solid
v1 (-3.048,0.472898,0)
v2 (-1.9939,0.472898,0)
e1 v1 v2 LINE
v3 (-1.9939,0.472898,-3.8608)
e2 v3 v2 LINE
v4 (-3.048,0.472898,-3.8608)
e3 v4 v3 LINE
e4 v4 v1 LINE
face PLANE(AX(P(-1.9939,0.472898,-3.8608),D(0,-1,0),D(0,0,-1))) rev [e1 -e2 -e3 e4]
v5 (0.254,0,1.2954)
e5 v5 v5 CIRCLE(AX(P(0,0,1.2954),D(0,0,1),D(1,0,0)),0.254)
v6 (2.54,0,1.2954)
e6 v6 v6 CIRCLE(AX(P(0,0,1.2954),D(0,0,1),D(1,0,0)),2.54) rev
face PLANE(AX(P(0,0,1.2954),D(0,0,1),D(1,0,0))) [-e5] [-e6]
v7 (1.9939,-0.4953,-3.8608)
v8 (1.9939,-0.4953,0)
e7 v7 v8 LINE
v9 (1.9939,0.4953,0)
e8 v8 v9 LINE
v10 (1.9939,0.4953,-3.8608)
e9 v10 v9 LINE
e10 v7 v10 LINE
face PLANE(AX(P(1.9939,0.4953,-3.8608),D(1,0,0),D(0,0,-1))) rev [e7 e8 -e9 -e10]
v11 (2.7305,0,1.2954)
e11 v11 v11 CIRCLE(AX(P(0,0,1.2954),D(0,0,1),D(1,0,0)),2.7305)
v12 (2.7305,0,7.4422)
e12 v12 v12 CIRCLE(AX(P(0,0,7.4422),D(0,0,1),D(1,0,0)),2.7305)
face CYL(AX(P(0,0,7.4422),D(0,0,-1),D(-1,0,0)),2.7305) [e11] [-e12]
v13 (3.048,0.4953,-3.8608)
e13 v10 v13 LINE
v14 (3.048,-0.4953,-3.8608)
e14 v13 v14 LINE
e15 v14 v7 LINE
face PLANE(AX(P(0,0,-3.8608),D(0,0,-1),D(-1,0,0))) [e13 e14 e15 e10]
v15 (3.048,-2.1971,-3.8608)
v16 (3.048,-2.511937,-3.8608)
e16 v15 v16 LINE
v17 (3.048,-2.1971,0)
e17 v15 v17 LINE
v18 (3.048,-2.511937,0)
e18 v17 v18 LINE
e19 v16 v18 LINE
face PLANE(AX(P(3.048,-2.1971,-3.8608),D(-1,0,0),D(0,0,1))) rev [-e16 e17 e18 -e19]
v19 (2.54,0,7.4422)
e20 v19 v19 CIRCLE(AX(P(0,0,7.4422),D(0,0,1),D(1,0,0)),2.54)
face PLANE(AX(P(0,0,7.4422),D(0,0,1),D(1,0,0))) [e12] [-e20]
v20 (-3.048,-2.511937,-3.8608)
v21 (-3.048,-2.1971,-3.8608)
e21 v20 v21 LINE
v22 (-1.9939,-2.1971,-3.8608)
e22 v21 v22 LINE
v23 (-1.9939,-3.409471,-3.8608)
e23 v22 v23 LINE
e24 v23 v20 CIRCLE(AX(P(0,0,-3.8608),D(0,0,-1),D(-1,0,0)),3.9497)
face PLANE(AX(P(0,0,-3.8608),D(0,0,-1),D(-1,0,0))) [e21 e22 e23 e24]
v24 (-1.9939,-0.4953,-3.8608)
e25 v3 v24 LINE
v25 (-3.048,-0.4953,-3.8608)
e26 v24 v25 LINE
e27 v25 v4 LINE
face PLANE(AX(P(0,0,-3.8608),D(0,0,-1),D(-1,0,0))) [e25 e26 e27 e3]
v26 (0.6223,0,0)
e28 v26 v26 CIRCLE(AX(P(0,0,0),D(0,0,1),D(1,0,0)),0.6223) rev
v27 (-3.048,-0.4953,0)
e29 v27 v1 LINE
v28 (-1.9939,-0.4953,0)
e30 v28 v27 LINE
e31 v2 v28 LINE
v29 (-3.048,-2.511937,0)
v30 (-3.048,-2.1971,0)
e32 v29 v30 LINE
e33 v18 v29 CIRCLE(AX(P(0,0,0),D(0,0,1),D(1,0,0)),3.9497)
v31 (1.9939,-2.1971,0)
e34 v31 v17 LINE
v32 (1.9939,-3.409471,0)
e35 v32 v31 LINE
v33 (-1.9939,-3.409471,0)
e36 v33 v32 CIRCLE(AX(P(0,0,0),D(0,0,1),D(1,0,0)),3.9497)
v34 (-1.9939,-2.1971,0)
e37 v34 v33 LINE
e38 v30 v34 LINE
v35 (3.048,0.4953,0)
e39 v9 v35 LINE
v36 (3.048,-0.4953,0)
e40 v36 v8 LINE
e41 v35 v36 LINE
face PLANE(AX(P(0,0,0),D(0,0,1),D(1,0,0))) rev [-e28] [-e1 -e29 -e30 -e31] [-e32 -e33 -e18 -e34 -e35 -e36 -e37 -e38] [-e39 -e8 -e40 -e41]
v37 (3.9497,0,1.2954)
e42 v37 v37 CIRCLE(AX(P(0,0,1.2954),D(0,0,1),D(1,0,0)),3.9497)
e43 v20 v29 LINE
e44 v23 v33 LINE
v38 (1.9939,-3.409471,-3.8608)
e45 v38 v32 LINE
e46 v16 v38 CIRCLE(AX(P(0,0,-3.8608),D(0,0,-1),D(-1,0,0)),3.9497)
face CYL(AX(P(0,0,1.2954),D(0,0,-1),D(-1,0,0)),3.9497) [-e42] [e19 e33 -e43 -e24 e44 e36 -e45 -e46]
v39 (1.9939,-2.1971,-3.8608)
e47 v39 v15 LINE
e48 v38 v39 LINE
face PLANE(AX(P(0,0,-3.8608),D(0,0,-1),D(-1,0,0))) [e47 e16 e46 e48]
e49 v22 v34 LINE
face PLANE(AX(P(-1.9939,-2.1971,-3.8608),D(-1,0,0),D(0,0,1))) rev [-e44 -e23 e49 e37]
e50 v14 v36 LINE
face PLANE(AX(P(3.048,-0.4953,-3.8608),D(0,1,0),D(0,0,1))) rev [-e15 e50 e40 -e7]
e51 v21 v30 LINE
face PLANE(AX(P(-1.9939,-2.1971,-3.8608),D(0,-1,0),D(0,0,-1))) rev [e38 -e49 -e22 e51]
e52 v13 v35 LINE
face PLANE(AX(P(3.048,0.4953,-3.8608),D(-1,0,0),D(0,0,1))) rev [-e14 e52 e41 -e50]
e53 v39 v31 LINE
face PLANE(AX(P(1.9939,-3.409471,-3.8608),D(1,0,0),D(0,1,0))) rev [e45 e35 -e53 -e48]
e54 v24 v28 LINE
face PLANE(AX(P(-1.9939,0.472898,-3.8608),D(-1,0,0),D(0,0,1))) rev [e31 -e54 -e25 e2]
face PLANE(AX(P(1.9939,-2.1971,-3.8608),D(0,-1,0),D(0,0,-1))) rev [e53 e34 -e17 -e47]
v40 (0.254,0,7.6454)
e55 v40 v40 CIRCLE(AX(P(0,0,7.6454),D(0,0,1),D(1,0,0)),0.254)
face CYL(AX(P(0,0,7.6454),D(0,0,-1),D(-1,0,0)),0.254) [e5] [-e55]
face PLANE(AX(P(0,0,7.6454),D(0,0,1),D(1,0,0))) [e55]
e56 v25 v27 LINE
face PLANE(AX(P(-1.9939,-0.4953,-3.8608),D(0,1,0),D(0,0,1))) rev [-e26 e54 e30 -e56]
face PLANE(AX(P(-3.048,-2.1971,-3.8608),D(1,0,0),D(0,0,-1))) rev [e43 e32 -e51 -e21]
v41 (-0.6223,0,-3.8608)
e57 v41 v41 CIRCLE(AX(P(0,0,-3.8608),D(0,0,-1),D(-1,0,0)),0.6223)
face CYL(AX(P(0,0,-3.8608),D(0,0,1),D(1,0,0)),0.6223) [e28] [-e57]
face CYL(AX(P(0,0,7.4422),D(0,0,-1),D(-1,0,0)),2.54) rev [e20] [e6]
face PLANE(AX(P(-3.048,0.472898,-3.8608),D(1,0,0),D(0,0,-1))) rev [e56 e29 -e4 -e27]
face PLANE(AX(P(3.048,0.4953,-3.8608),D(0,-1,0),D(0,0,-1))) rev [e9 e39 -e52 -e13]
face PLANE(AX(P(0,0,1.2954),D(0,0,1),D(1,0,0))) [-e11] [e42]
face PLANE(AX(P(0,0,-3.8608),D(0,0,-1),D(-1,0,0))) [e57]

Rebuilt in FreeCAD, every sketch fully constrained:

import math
import FreeCAD as App
import Part
import Sketcher
from FreeCAD import Vector
Q = App.Units.Quantity

doc = App.newDocument("Part")
body = doc.addObject("PartDesign::Body", "Body")

# Sketch on XY plane
sketch1 = doc.addObject("Sketcher::SketchObject", "Sketch")
body.addObject(sketch1)
sketch1.AttachmentSupport = (doc.XY_Plane, [""])
sketch1.MapMode = "FlatFace"
sketch1.addGeometry(Part.Circle(Vector(0, 0, 0), Vector(0, 0, 1), 3.9), False)
sketch1.addConstraint(Sketcher.Constraint("Coincident", 0, 3, -1, 1))
sketch1.addConstraint(Sketcher.Constraint("Diameter", 0, Q("0.311 in")))
pad1 = doc.addObject("PartDesign::Pad", "Pad")
body.addObject(pad1)
pad1.Profile = sketch1
pad1.Length = Q("0.051 in")

# Sketch on XY plane
sketch2 = doc.addObject("Sketcher::SketchObject", "Sketch001")
body.addObject(sketch2)
sketch2.AttachmentSupport = (doc.XY_Plane, [""])
sketch2.MapMode = "FlatFace"
sketch2.AttachmentOffset = App.Placement(Vector(0, 0, 0.051 * 25.4), App.Rotation())
sketch2.addGeometry(Part.Circle(Vector(0, 0, 0), Vector(0, 0, 1), 2.7), False)
sketch2.addGeometry(Part.Circle(Vector(0, 0, 0), Vector(0, 0, 1), 2.5), False)
sketch2.addConstraint(Sketcher.Constraint("Coincident", 0, 3, -1, 1))
sketch2.addConstraint(Sketcher.Constraint("Coincident", 1, 3, -1, 1))
sketch2.addConstraint(Sketcher.Constraint("Diameter", 1, Q("0.2 in")))
sketch2.addConstraint(Sketcher.Constraint("Diameter", 0, Q("0.215 in")))
pad2 = doc.addObject("PartDesign::Pad", "Pad001")
body.addObject(pad2)
pad2.Profile = sketch2
pad2.Length = Q("0.242 in")

# Sketch on XY plane
sketch3 = doc.addObject("Sketcher::SketchObject", "Sketch002")
body.addObject(sketch3)
sketch3.AttachmentSupport = (doc.XY_Plane, [""])
sketch3.MapMode = "FlatFace"
sketch3.AttachmentOffset = App.Placement(Vector(0, 0, -0.152 * 25.4), App.Rotation())
sketch3.addGeometry(Part.LineSegment(Vector(-1.99, 0.47, 0), Vector(-1.99, -0.5, 0)), False)
sketch3.addGeometry(Part.LineSegment(Vector(-1.99, -0.5, 0), Vector(-3.05, -0.5, 0)), False)
sketch3.addGeometry(Part.LineSegment(Vector(-3.05, -0.5, 0), Vector(-3.05, 0.47, 0)), False)
sketch3.addGeometry(Part.LineSegment(Vector(-3.05, 0.47, 0), Vector(-1.99, 0.47, 0)), False)
sketch3.addGeometry(Part.LineSegment(Vector(3.05, 0.5, 0), Vector(3.05, -0.5, 0)), False)
sketch3.addGeometry(Part.LineSegment(Vector(3.05, -0.5, 0), Vector(1.99, -0.5, 0)), False)
sketch3.addGeometry(Part.LineSegment(Vector(1.99, -0.5, 0), Vector(1.99, 0.5, 0)), False)
sketch3.addGeometry(Part.LineSegment(Vector(1.99, 0.5, 0), Vector(3.05, 0.5, 0)), False)
sketch3.addGeometry(Part.LineSegment(Vector(1.99, -3.41, 0), Vector(1.99, -2.2, 0)), False)
sketch3.addGeometry(Part.LineSegment(Vector(1.99, -2.2, 0), Vector(3.05, -2.2, 0)), False)
sketch3.addGeometry(Part.LineSegment(Vector(3.05, -2.2, 0), Vector(3.05, -2.51, 0)), False)
sketch3.addGeometry(Part.ArcOfCircle(Part.Circle(Vector(0, 0, 0), Vector(0, 0, 1), 3.95), math.radians(-60), math.radians(-39)), False)
sketch3.addGeometry(Part.LineSegment(Vector(-3.05, -2.2, 0), Vector(-1.99, -2.2, 0)), False)
sketch3.addGeometry(Part.LineSegment(Vector(-1.99, -2.2, 0), Vector(-1.99, -3.41, 0)), False)
sketch3.addGeometry(Part.ArcOfCircle(Part.Circle(Vector(0, 0, 0), Vector(0, 0, 1), 3.95), math.radians(-141), math.radians(-120)), False)
sketch3.addGeometry(Part.LineSegment(Vector(-3.05, -2.51, 0), Vector(-3.05, -2.2, 0)), False)
sketch3.addConstraint(Sketcher.Constraint("Coincident", 0, 2, 1, 1))
sketch3.addConstraint(Sketcher.Constraint("Coincident", 1, 2, 2, 1))
sketch3.addConstraint(Sketcher.Constraint("Coincident", 2, 2, 3, 1))
sketch3.addConstraint(Sketcher.Constraint("Coincident", 3, 2, 0, 1))
sketch3.addConstraint(Sketcher.Constraint("Coincident", 4, 2, 5, 1))
sketch3.addConstraint(Sketcher.Constraint("Coincident", 5, 2, 6, 1))
sketch3.addConstraint(Sketcher.Constraint("Coincident", 6, 2, 7, 1))
sketch3.addConstraint(Sketcher.Constraint("Coincident", 7, 2, 4, 1))
sketch3.addConstraint(Sketcher.Constraint("Coincident", 8, 2, 9, 1))
sketch3.addConstraint(Sketcher.Constraint("Coincident", 9, 2, 10, 1))
sketch3.addConstraint(Sketcher.Constraint("Coincident", 10, 2, 11, 2))
sketch3.addConstraint(Sketcher.Constraint("Coincident", 11, 1, 8, 1))
sketch3.addConstraint(Sketcher.Constraint("Coincident", 12, 2, 13, 1))
sketch3.addConstraint(Sketcher.Constraint("Coincident", 13, 2, 14, 2))
sketch3.addConstraint(Sketcher.Constraint("Coincident", 14, 1, 15, 1))
sketch3.addConstraint(Sketcher.Constraint("Coincident", 15, 2, 12, 1))
sketch3.addConstraint(Sketcher.Constraint("Vertical", 0))
sketch3.addConstraint(Sketcher.Constraint("Horizontal", 1))
sketch3.addConstraint(Sketcher.Constraint("Vertical", 2))
sketch3.addConstraint(Sketcher.Constraint("Horizontal", 3))
sketch3.addConstraint(Sketcher.Constraint("Vertical", 4))
sketch3.addConstraint(Sketcher.Constraint("Horizontal", 5))
sketch3.addConstraint(Sketcher.Constraint("Vertical", 6))
sketch3.addConstraint(Sketcher.Constraint("Horizontal", 7))
sketch3.addConstraint(Sketcher.Constraint("Vertical", 8))
sketch3.addConstraint(Sketcher.Constraint("Horizontal", 9))
sketch3.addConstraint(Sketcher.Constraint("Vertical", 10))
sketch3.addConstraint(Sketcher.Constraint("Horizontal", 12))
sketch3.addConstraint(Sketcher.Constraint("Vertical", 13))
sketch3.addConstraint(Sketcher.Constraint("Vertical", 15))
sketch3.addConstraint(Sketcher.Constraint("Coincident", 11, 3, -1, 1))
sketch3.addConstraint(Sketcher.Constraint("Coincident", 14, 3, -1, 1))
sketch3.addConstraint(Sketcher.Constraint("Equal", 11, 14))
sketch3.addConstraint(Sketcher.Constraint("Symmetric", 0, 2, 6, 2, -1, 1))
sketch3.addConstraint(Sketcher.Constraint("Symmetric", 1, 2, 4, 2, -2))
sketch3.addConstraint(Sketcher.Constraint("Symmetric", 8, 2, 12, 2, -2))
sketch3.addConstraint(Sketcher.Constraint("Horizontal", 10, 2, 14, 1))
sketch3.addConstraint(Sketcher.Constraint("Vertical", 6, 2, 8, 2))
sketch3.addConstraint(Sketcher.Constraint("Vertical", 7, 2, 9, 2))
sketch3.addConstraint(Sketcher.Constraint("Radius", 11, Q("0.1555 in")))
sketch3.addConstraint(Sketcher.Constraint("DistanceY", 4, 2, 4, 1, Q("0.039 in")))
sketch3.addConstraint(Sketcher.Constraint("DistanceX", 1, 2, -1, 1, Q("0.12 in")))
sketch3.addConstraint(Sketcher.Constraint("DistanceX", 1, 2, 1, 1, Q("0.0415 in")))
sketch3.addConstraint(Sketcher.Constraint("DistanceY", 8, 2, 5, 2, Q("0.067 in")))
sketch3.addConstraint(Sketcher.Constraint("DistanceY", 0, 2, 0, 1, 0.968198))
pad3 = doc.addObject("PartDesign::Pad", "Pad002")
body.addObject(pad3)
pad3.Profile = sketch3
pad3.Length = Q("0.152 in")

# Sketch on XY plane
sketch4 = doc.addObject("Sketcher::SketchObject", "Sketch003")
body.addObject(sketch4)
sketch4.AttachmentSupport = (doc.XY_Plane, [""])
sketch4.MapMode = "FlatFace"
sketch4.addGeometry(Part.Circle(Vector(0, 0, 0), Vector(0, 0, 1), 0.6), False)
sketch4.addConstraint(Sketcher.Constraint("Coincident", 0, 3, -1, 1))
sketch4.addConstraint(Sketcher.Constraint("Diameter", 0, Q("0.049 in")))
pad4 = doc.addObject("PartDesign::Pad", "Pad003")
body.addObject(pad4)
pad4.Profile = sketch4
pad4.Length = Q("0.152 in")
pad4.Reversed = True

# Sketch on XY plane
sketch5 = doc.addObject("Sketcher::SketchObject", "Sketch004")
body.addObject(sketch5)
sketch5.AttachmentSupport = (doc.XY_Plane, [""])
sketch5.MapMode = "FlatFace"
sketch5.AttachmentOffset = App.Placement(Vector(0, 0, 0.051 * 25.4), App.Rotation())
sketch5.addGeometry(Part.Circle(Vector(0, 0, 0), Vector(0, 0, 1), 0.25), False)
sketch5.addConstraint(Sketcher.Constraint("Coincident", 0, 3, -1, 1))
sketch5.addConstraint(Sketcher.Constraint("Diameter", 0, Q("0.02 in")))
pad5 = doc.addObject("PartDesign::Pad", "Pad004")
body.addObject(pad5)
pad5.Profile = sketch5
pad5.Length = Q("0.25 in")

doc.recompute()
